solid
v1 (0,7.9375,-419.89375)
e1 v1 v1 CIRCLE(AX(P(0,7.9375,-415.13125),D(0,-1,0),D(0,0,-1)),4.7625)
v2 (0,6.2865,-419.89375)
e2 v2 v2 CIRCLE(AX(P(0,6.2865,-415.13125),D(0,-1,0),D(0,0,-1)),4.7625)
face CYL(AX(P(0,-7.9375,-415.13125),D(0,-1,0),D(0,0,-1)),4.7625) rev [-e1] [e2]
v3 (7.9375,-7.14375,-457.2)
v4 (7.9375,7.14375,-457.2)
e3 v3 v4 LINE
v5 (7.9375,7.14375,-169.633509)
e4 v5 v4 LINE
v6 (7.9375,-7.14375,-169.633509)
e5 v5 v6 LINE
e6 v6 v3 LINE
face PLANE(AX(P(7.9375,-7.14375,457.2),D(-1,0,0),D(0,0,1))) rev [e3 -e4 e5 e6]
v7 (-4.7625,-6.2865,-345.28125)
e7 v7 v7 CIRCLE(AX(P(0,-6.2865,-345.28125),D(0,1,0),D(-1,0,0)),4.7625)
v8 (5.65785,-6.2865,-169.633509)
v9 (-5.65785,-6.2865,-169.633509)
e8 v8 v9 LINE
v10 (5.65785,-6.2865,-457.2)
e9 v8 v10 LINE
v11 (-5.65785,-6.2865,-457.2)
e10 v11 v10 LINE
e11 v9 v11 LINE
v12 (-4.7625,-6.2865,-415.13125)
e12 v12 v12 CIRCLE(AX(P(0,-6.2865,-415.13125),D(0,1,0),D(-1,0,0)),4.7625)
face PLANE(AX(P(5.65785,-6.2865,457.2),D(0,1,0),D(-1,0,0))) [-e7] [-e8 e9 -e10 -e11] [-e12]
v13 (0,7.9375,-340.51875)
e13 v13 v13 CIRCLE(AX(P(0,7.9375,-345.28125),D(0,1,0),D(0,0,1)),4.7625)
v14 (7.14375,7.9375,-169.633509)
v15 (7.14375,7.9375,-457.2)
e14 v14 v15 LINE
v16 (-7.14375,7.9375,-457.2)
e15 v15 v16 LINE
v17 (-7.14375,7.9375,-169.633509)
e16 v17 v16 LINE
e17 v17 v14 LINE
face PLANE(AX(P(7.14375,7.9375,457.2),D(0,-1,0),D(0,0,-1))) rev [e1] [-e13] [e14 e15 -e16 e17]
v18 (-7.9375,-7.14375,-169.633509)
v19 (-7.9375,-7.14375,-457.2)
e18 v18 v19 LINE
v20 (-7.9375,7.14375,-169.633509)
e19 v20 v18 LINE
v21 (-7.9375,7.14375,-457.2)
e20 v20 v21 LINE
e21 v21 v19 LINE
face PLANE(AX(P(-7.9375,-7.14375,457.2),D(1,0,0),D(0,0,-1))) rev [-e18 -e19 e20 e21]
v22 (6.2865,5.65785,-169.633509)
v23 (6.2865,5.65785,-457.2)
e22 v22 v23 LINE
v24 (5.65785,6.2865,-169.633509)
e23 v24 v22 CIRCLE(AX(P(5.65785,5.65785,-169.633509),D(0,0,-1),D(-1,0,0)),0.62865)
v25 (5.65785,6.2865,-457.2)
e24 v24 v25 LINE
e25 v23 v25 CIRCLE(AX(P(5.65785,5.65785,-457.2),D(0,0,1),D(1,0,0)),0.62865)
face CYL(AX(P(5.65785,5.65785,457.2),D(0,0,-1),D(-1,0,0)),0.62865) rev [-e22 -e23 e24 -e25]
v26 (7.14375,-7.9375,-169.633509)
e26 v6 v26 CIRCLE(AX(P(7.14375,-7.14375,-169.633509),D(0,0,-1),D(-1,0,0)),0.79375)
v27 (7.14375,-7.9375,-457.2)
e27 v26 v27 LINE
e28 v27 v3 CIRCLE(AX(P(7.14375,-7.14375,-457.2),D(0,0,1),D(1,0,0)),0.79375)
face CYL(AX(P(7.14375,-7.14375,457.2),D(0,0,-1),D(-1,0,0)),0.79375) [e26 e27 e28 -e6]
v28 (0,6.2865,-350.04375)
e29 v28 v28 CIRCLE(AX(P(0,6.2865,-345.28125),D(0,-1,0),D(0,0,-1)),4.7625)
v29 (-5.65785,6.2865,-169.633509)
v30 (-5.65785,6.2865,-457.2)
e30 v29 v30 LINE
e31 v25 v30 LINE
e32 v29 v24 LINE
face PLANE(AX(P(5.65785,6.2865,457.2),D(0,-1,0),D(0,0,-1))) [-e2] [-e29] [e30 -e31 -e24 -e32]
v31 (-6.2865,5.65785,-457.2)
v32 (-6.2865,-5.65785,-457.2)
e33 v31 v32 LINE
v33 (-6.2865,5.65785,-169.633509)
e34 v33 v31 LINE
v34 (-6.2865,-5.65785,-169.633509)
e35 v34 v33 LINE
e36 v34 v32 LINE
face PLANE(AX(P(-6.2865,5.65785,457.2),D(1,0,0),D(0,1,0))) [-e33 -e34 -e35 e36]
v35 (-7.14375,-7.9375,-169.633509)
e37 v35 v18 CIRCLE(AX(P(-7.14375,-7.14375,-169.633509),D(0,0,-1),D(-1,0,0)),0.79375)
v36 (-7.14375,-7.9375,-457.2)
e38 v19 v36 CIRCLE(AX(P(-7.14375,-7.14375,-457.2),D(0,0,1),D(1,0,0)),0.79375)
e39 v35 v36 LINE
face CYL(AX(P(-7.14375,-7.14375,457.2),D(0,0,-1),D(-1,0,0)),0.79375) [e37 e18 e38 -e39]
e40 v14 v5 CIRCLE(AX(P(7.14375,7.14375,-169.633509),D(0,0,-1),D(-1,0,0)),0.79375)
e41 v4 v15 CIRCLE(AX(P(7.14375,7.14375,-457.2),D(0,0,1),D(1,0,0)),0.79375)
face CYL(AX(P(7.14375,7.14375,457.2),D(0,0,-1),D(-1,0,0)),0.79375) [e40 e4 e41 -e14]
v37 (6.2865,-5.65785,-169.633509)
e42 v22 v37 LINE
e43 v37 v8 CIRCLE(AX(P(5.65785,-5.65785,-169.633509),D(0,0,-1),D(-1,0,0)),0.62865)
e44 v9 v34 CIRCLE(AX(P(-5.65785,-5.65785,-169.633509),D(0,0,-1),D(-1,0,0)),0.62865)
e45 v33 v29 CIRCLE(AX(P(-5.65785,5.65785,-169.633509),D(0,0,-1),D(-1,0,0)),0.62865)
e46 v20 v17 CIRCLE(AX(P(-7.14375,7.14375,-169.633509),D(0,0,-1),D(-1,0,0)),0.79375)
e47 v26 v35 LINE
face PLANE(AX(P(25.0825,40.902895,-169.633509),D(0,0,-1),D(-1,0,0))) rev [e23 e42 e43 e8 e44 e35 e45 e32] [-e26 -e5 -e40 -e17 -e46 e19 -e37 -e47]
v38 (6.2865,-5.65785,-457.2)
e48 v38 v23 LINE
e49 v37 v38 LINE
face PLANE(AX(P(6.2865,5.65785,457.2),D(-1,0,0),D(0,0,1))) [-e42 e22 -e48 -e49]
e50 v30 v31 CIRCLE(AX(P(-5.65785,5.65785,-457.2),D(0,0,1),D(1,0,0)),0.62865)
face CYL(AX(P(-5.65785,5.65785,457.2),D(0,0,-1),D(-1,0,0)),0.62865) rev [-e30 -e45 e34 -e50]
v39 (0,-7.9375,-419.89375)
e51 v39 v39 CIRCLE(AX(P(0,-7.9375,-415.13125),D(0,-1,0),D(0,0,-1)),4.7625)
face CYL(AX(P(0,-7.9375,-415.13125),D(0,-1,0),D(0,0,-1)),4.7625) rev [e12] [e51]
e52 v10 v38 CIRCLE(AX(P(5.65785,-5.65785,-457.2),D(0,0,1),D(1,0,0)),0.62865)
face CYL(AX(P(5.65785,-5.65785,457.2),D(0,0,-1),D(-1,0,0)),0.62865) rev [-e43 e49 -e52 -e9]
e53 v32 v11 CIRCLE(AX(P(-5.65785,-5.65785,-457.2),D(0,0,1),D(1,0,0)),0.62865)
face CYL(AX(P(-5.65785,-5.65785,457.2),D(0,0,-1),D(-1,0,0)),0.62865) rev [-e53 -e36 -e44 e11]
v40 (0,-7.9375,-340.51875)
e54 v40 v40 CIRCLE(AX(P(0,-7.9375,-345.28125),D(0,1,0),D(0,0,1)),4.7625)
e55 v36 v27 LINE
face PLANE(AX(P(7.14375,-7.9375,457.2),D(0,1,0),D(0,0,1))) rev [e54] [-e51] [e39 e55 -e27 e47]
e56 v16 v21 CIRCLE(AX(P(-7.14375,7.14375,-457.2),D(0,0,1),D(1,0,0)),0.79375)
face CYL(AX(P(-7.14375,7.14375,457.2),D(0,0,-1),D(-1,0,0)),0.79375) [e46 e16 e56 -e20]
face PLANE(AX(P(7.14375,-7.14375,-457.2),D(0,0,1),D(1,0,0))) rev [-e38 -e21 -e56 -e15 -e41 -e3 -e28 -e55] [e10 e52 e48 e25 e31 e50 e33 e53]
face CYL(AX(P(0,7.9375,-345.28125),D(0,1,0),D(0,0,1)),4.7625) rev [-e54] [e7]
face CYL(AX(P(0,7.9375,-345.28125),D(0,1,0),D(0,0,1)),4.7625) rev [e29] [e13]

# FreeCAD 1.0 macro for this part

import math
import FreeCAD as App
import Part
import Sketcher
from FreeCAD import Vector
Q = App.Units.Quantity

doc = App.newDocument("Part")
params = doc.addObject("Spreadsheet::Sheet", "Params")
for row, (alias, value) in enumerate([
    ("sketch1_radius", "0.03125 in"),
    ("sketch1_width", "0.5625 in"),
    ("pad1_length", "18 in"),
    ("pad1_length2", "18 in"),
    ("sketch2_diameter", "0.375 in"),
    ("hole_diameter", "0.375 in"),
    ("sketch3_diameter", "0.375 in"),
    ("hole2_diameter", "0.375 in"),
    ("pocket1_length", "1.3 in"),
], start=1):
    params.set(f"A{row}", alias)
    params.set(f"B{row}", "=" + value)
    params.setAlias(f"B{row}", alias)

body = doc.addObject("PartDesign::Body", "Body")

# Sketch on XY plane
sketch1 = body.newObject("Sketcher::SketchObject", "Sketch")
sketch1.AttachmentSupport = (doc.getObject("XY_Plane"), [""])
sketch1.MapMode = "FlatFace"
sketch1.addGeometry([
    Part.LineSegment(Vector(7.9, -7.1, 0), Vector(7.9, 7.1, 0)),  # 0
    Part.ArcOfCircle(Part.Circle(Vector(7.1, 7.1, 0), Vector(0, 0, 1), 0.8), math.radians(0), math.radians(90)),  # 1
    Part.LineSegment(Vector(7.1, 7.9, 0), Vector(-7.1, 7.9, 0)),  # 2
    Part.ArcOfCircle(Part.Circle(Vector(-7.1, 7.1, 0), Vector(0, 0, 1), 0.8), math.radians(90), math.radians(180)),  # 3
    Part.LineSegment(Vector(-7.9, 7.1, 0), Vector(-7.9, -7.1, 0)),  # 4
    Part.ArcOfCircle(Part.Circle(Vector(-7.1, -7.1, 0), Vector(0, 0, 1), 0.8), math.radians(180), math.radians(270)),  # 5
    Part.LineSegment(Vector(-7.1, -7.9, 0), Vector(7.1, -7.9, 0)),  # 6
    Part.ArcOfCircle(Part.Circle(Vector(7.1, -7.1, 0), Vector(0, 0, 1), 0.8), math.radians(-90), math.radians(0)),  # 7
    Part.ArcOfCircle(Part.Circle(Vector(5.7, 5.7, 0), Vector(0, 0, 1), 0.6), math.radians(0), math.radians(90)),  # 8
    Part.LineSegment(Vector(6.3, 5.7, 0), Vector(6.3, -5.7, 0)),  # 9
    Part.ArcOfCircle(Part.Circle(Vector(5.7, -5.7, 0), Vector(0, 0, 1), 0.6), math.radians(-90), math.radians(0)),  # 10
    Part.LineSegment(Vector(5.7, -6.3, 0), Vector(-5.7, -6.3, 0)),  # 11
    Part.ArcOfCircle(Part.Circle(Vector(-5.7, -5.7, 0), Vector(0, 0, 1), 0.6), math.radians(180), math.radians(270)),  # 12
    Part.LineSegment(Vector(-6.3, -5.7, 0), Vector(-6.3, 5.7, 0)),  # 13
    Part.ArcOfCircle(Part.Circle(Vector(-5.7, 5.7, 0), Vector(0, 0, 1), 0.6), math.radians(90), math.radians(180)),  # 14
    Part.LineSegment(Vector(-5.7, 6.3, 0), Vector(5.7, 6.3, 0)),  # 15
], False)
sketch1.addConstraint([
    Sketcher.Constraint("Tangent", 0, 2, 1, 1),
    Sketcher.Constraint("Tangent", 1, 2, 2, 1),
    Sketcher.Constraint("Tangent", 2, 2, 3, 1),
    Sketcher.Constraint("Tangent", 3, 2, 4, 1),
    Sketcher.Constraint("Tangent", 4, 2, 5, 1),
    Sketcher.Constraint("Tangent", 5, 2, 6, 1),
    Sketcher.Constraint("Tangent", 6, 2, 7, 1),
    Sketcher.Constraint("Tangent", 7, 2, 0, 1),
    Sketcher.Constraint("Tangent", 8, 1, 9, 1),
    Sketcher.Constraint("Tangent", 9, 2, 10, 2),
    Sketcher.Constraint("Tangent", 10, 1, 11, 1),
    Sketcher.Constraint("Tangent", 11, 2, 12, 2),
    Sketcher.Constraint("Tangent", 12, 1, 13, 1),
    Sketcher.Constraint("Tangent", 13, 2, 14, 2),
    Sketcher.Constraint("Tangent", 14, 1, 15, 1),
    Sketcher.Constraint("Tangent", 15, 2, 8, 2),
    Sketcher.Constraint("Vertical", 0),
    Sketcher.Constraint("Horizontal", 2),
    Sketcher.Constraint("Vertical", 4),
    Sketcher.Constraint("Horizontal", 6),
    Sketcher.Constraint("Vertical", 9),
    Sketcher.Constraint("Horizontal", 11),
    Sketcher.Constraint("Vertical", 13),
    Sketcher.Constraint("Horizontal", 15),
    Sketcher.Constraint("Equal", 1, 3),
    Sketcher.Constraint("Equal", 3, 5),
    Sketcher.Constraint("Equal", 5, 7),
    Sketcher.Constraint("Equal", 8, 10),
    Sketcher.Constraint("Equal", 10, 12),
    Sketcher.Constraint("Equal", 12, 14),
    Sketcher.Constraint("Symmetric", 1, 3, 5, 3, -1, 1),
    Sketcher.Constraint("Symmetric", 8, 3, 12, 3, -1, 1),
    Sketcher.Constraint("Equal", 6, 0),
    Sketcher.Constraint("Equal", 15, 9),
    Sketcher.Constraint("Radius", 1, Q("0.03125 in")),
    Sketcher.Constraint("DistanceX", 2, 2, 2, 1, Q("0.5625 in")),
    Sketcher.Constraint("DistanceX", 11, 2, 11, 1, Q("0.4455 in")),
    Sketcher.Constraint("Radius", 8, 0.62865),
])
sketch1.setExpression("Constraints[34]", "Params.sketch1_radius")
sketch1.setExpression("Constraints[35]", "Params.sketch1_width")
pad1 = body.newObject("PartDesign::Pad", "Pad")
pad1.Profile = sketch1
pad1.Type = "TwoLengths"
pad1.setExpression("Length", "Params.pad1_length")
pad1.setExpression("Length2", "Params.pad1_length2")

# Sketch on XZ plane
sketch2 = body.newObject("Sketcher::SketchObject", "Sketch001")
sketch2.AttachmentSupport = (doc.getObject("XZ_Plane"), [""])
sketch2.MapMode = "FlatFace"
sketch2.AttachmentOffset = App.Placement(Vector(0, 0, 0.3125 * 25.4), App.Rotation())
sketch2.addGeometry(Part.Circle(Vector(0, -415.1, 0), Vector(0, 0, 1), 4.8), False)
sketch2.addConstraint([
    Sketcher.Constraint("PointOnObject", 0, 3, -2),
    Sketcher.Constraint("Diameter", 0, Q("0.375 in")),
    Sketcher.Constraint("DistanceY", 0, 3, -1, 1, Q("16.34375 in")),
])
sketch2.setExpression("Constraints[1]", "Params.sketch2_diameter")
doc.recompute()
hole = body.newObject("PartDesign::Hole", "Hole")
hole.Profile = sketch2
hole.ThreadType = "None"
hole.setExpression("Diameter", "Params.hole_diameter")
hole.DepthType = "ThroughAll"

# Sketch on XZ plane
sketch3 = body.newObject("Sketcher::SketchObject", "Sketch002")
sketch3.AttachmentSupport = (doc.getObject("XZ_Plane"), [""])
sketch3.MapMode = "FlatFace"
sketch3.AttachmentOffset = App.Placement(Vector(0, 0, -0.3125 * 25.4), App.Rotation())
sketch3.addGeometry(Part.Circle(Vector(0, -345.3, 0), Vector(0, 0, 1), 4.8), False)
sketch3.addConstraint([
    Sketcher.Constraint("PointOnObject", 0, 3, -2),
    Sketcher.Constraint("Diameter", 0, Q("0.375 in")),
    Sketcher.Constraint("DistanceY", 0, 3, -1, 1, Q("13.59375 in")),
])
sketch3.setExpression("Constraints[1]", "Params.sketch3_diameter")
doc.recompute()
hole2 = body.newObject("PartDesign::Hole", "Hole001")
hole2.Profile = sketch3
hole2.ThreadType = "None"
hole2.setExpression("Diameter", "Params.hole2_diameter")
hole2.DepthType = "ThroughAll"
hole2.Reversed = True

# Sketch on YZ plane
sketch4 = body.newObject("Sketcher::SketchObject", "Sketch003")
sketch4.AttachmentSupport = (doc.getObject("YZ_Plane"), [""])
sketch4.MapMode = "FlatFace"
sketch4.AttachmentOffset = App.Placement(Vector(0, 0, -0.3125 * 25.4), App.Rotation())
sketch4.addGeometry([
    Part.LineSegment(Vector(41, -170, 0), Vector(-38, -170, 0)),
    Part.LineSegment(Vector(-38, -170, 0), Vector(-38, 608, 0)),
    Part.LineSegment(Vector(-38, 608, 0), Vector(41, 608, 0)),
    Part.LineSegment(Vector(41, 608, 0), Vector(41, -170, 0)),
], False)
sketch4.addConstraint([
    Sketcher.Constraint("Coincident", 0, 2, 1, 1),
    Sketcher.Constraint("Coincident", 1, 2, 2, 1),
    Sketcher.Constraint("Coincident", 2, 2, 3, 1),
    Sketcher.Constraint("Coincident", 3, 2, 0, 1),
    Sketcher.Constraint("Horizontal", 0),
    Sketcher.Constraint("Vertical", 1),
    Sketcher.Constraint("Horizontal", 2),
    Sketcher.Constraint("Vertical", 3),
    Sketcher.Constraint("DistanceX", 0, 2, 0, 1, 78.912239),
    Sketcher.Constraint("DistanceY", -1, 1, 1, 2, 607.832398),
    Sketcher.Constraint("DistanceY", 1, 1, 1, 2, 777.465907),
    Sketcher.Constraint("DistanceX", 0, 2, -1, 1, 38.009344),
])
pocket1 = body.newObject("PartDesign::Pocket", "Pocket")
pocket1.Profile = sketch4
pocket1.setExpression("Length", "Params.pocket1_length")
pocket1.Reversed = True

doc.recompute()
